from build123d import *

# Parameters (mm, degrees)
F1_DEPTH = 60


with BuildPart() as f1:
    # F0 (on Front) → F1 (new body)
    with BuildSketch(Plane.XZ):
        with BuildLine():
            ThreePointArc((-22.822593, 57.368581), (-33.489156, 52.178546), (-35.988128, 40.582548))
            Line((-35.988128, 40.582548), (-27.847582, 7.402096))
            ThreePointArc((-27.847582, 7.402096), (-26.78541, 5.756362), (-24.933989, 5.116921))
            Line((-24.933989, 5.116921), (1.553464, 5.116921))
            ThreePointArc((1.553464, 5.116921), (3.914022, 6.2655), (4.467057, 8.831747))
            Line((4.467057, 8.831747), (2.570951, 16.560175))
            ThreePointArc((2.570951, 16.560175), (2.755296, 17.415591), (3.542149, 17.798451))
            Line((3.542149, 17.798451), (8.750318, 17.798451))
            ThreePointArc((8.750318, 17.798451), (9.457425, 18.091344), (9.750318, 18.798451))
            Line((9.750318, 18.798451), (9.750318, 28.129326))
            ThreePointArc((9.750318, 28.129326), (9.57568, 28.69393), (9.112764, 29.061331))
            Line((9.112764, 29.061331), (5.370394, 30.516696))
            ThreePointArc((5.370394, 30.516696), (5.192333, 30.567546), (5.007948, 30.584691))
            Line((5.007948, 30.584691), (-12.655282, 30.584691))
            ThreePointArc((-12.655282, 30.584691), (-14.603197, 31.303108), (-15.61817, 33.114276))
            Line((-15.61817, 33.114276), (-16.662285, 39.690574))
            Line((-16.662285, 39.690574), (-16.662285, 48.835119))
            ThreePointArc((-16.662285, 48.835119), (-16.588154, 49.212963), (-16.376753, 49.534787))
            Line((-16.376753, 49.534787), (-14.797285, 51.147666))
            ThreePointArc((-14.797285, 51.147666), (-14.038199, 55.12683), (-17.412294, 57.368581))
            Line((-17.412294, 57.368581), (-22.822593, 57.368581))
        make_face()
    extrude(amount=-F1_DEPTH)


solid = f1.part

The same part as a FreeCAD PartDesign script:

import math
import FreeCAD as App
import Part
import Sketcher

V = App.Vector
Q = App.Units.Quantity

doc = App.newDocument("Part")
body = doc.addObject("PartDesign::Body", "Body")

sketch1 = doc.addObject("Sketcher::SketchObject", "Sketch")
body.addObject(sketch1)
sketch1.AttachmentSupport = (doc.XZ_Plane, [""])
sketch1.MapMode = "FlatFace"
sketch1.addGeometry([
    Part.ArcOfCircle(Part.Circle(V(-22.822595, 43.812603, 0), V(0, 0, 1), 13.555978), math.radians(89.999993), math.radians(193.784773)),
    Part.LineSegment(V(-35.988128, 40.582548, 0), V(-27.847582, 7.402096, 0)),
    Part.ArcOfCircle(Part.Circle(V(-24.933988, 8.116922, 0), V(0, 0, 1), 3.000001), math.radians(-166.215241), math.radians(-90.000011)),
    Part.LineSegment(V(-24.933989, 5.116921, 0), V(1.553464, 5.116921, 0)),
    Part.ArcOfCircle(Part.Circle(V(1.553462, 8.116923, 0), V(0, 0, 1), 3.000002), math.radians(-89.999959), math.radians(13.784729)),
    Part.LineSegment(V(4.467057, 8.831747, 0), V(2.570951, 16.560175, 0)),
    Part.ArcOfCircle(Part.Circle(V(3.54215, 16.79845, 0), V(0, 0, 1), 1.000001), math.radians(90.000052), math.radians(193.784729)),
    Part.LineSegment(V(3.542149, 17.798451, 0), V(8.750318, 17.798451, 0)),
    Part.ArcOfCircle(Part.Circle(V(8.750319, 18.79845, 0), V(0, 0, 1), 0.999999), math.radians(-90.000043), math.radians(0.000043)),
    Part.LineSegment(V(9.750318, 18.798451, 0), V(9.750318, 28.129326, 0)),
    Part.ArcOfCircle(Part.Circle(V(8.750318, 28.129326, 0), V(0, 0, 1), 1), math.radians(0.000001), math.radians(68.749497)),
    Part.LineSegment(V(9.112764, 29.061331, 0), V(5.370394, 30.516696, 0)),
    Part.ArcOfCircle(Part.Circle(V(5.007957, 29.584736, 0), V(0, 0, 1), 0.999955), math.radians(68.749065), math.radians(90.000515)),
    Part.LineSegment(V(5.007948, 30.584691, 0), V(-12.655282, 30.584691, 0)),
    Part.ArcOfCircle(Part.Circle(V(-12.65528, 33.584693, 0), V(0, 0, 1), 3.000002), math.radians(-170.978477), math.radians(-90.000042)),
    Part.LineSegment(V(-15.61817, 33.114276, 0), V(-16.662285, 39.690574, 0)),
    Part.LineSegment(V(-16.662285, 39.690574, 0), V(-16.662285, 48.835119, 0)),
    Part.ArcOfCircle(Part.Circle(V(-15.662282, 48.835118, 0), V(0, 0, 1), 1.000003), math.radians(135.599678), math.radians(179.999932)),
    Part.LineSegment(V(-16.376753, 49.534787, 0), V(-14.797285, 51.147666, 0)),
    Part.ArcOfCircle(Part.Circle(V(-17.412294, 53.708504, 0), V(0, 0, 1), 3.660077), math.radians(-44.400365), math.radians(90.000007)),
    Part.LineSegment(V(-17.412294, 57.368581, 0), V(-22.822593, 57.368581, 0)),
], False)
sketch1.addConstraint([
    Sketcher.Constraint("Coincident", 0, 2, 1, 1),
    Sketcher.Constraint("Coincident", 1, 2, 2, 1),
    Sketcher.Constraint("Coincident", 2, 2, 3, 1),
    Sketcher.Constraint("Coincident", 3, 2, 4, 1),
    Sketcher.Constraint("Coincident", 4, 2, 5, 1),
    Sketcher.Constraint("Coincident", 5, 2, 6, 2),
    Sketcher.Constraint("Coincident", 6, 1, 7, 1),
    Sketcher.Constraint("Coincident", 7, 2, 8, 1),
    Sketcher.Constraint("Coincident", 8, 2, 9, 1),
    Sketcher.Constraint("Coincident", 9, 2, 10, 1),
    Sketcher.Constraint("Coincident", 10, 2, 11, 1),
    Sketcher.Constraint("Coincident", 11, 2, 12, 1),
    Sketcher.Constraint("Coincident", 12, 2, 13, 1),
    Sketcher.Constraint("Coincident", 13, 2, 14, 2),
    Sketcher.Constraint("Coincident", 14, 1, 15, 1),
    Sketcher.Constraint("Coincident", 15, 2, 16, 1),
    Sketcher.Constraint("Coincident", 16, 2, 17, 2),
    Sketcher.Constraint("Coincident", 17, 1, 18, 1),
    Sketcher.Constraint("Coincident", 18, 2, 19, 1),
    Sketcher.Constraint("Coincident", 19, 2, 20, 1),
    Sketcher.Constraint("Coincident", 20, 2, 0, 1),
    Sketcher.Constraint("Horizontal", 3),
    Sketcher.Constraint("Horizontal", 7),
    Sketcher.Constraint("Vertical", 9),
    Sketcher.Constraint("Horizontal", 13),
    Sketcher.Constraint("Vertical", 16),
    Sketcher.Constraint("Horizontal", 20),
    Sketcher.Constraint("Radius", 2, Q("3.000001 mm")),
    Sketcher.Constraint("Radius", 4, Q("3.000002 mm")),
    Sketcher.Constraint("Radius", 6, Q("1.000001 mm")),
    Sketcher.Constraint("Radius", 8, Q("0.999999 mm")),
    Sketcher.Constraint("Radius", 10, Q("1 mm")),
    Sketcher.Constraint("Radius", 14, Q("3.000002 mm")),
    Sketcher.Constraint("DistanceX", 7, 2, 8, 2, Q("1 mm")),
    Sketcher.Constraint("DistanceY", 7, 2, 8, 2, Q("1 mm")),
    Sketcher.Constraint("DistanceX", 20, 2, 20, 1, Q("5.410299 mm")),
    Sketcher.Constraint("Radius", 0, Q("13.555978 mm")),
    Sketcher.Constraint("Radius", 12, Q("0.999955 mm")),
    Sketcher.Constraint("Radius", 17, Q("1.000003 mm")),
    Sketcher.Constraint("Radius", 19, Q("3.660077 mm")),
    Sketcher.Constraint("DistanceX", 16, 2, 18, 2, Q("1.865 mm")),
    Sketcher.Constraint("DistanceX", 7, 1, 7, 2, Q("5.208169 mm")),
    Sketcher.Constraint("DistanceX", 13, 2, 13, 1, Q("17.66323 mm")),
    Sketcher.Constraint("DistanceX", 14, 3, 8, 3, Q("21.405599 mm")),
    Sketcher.Constraint("DistanceX", 17, 3, 10, 3, Q("24.4126 mm")),
    Sketcher.Constraint("DistanceX", 0, 3, 19, 3, Q("5.410301 mm")),
    Sketcher.Constraint("DistanceX", 5, 2, 6, 3, Q("0.971199 mm")),
    Sketcher.Constraint("DistanceX", 5, 2, 6, 1, Q("0.971198 mm")),
    Sketcher.Constraint("DistanceX", 20, 2, 19, 3, Q("5.410299 mm")),
    Sketcher.Constraint("Distance", 1, Q("34.164468 mm")),
    Sketcher.Constraint("Distance", 15, Q("6.658669 mm")),
    Sketcher.Constraint("DistanceX", 3, 1, 3, 2, Q("26.487453 mm")),
    Sketcher.Constraint("DistanceY", 9, 1, 9, 2, Q("9.330875 mm")),
    Sketcher.Constraint("DistanceY", 16, 1, 16, 2, Q("9.144545 mm")),
    Sketcher.Constraint("DistanceX", 2, 3, -1, 1, Q("24.933988 mm")),
    Sketcher.Constraint("DistanceY", -1, 1, 2, 3, Q("8.116922 mm")),
    Sketcher.Constraint("DistanceX", -1, 1, 4, 3, Q("1.553462 mm")),
    Sketcher.Constraint("DistanceX", -1, 1, 6, 3, Q("3.54215 mm")),
    Sketcher.Constraint("DistanceY", -1, 1, 6, 3, Q("16.79845 mm")),
    Sketcher.Constraint("DistanceX", 0, 2, -1, 1, Q("35.988128 mm")),
    Sketcher.Constraint("DistanceX", 1, 2, -1, 1, Q("27.847582 mm")),
    Sketcher.Constraint("DistanceX", 2, 2, -1, 1, Q("24.933989 mm")),
    Sketcher.Constraint("DistanceY", -1, 1, 10, 2, Q("29.061331 mm")),
    Sketcher.Constraint("DistanceY", -1, 1, 12, 2, Q("30.584691 mm")),
    Sketcher.Constraint("DistanceX", 14, 1, -1, 1, Q("15.61817 mm")),
    Sketcher.Constraint("DistanceY", -1, 1, 19, 2, Q("57.368581 mm")),
    Sketcher.Constraint("DistanceX", 12, 3, 10, 3, Q("3.742361 mm")),
    Sketcher.Constraint("DistanceY", 10, 3, 12, 3, Q("1.45541 mm")),
    Sketcher.Constraint("DistanceY", 12, 3, 17, 3, Q("19.250382 mm")),
    Sketcher.Constraint("DistanceX", 4, 2, 8, 3, Q("4.283262 mm")),
    Sketcher.Constraint("DistanceY", 12, 3, 11, 2, Q("0.93196 mm")),
    Sketcher.Constraint("DistanceX", 12, 2, 10, 3, Q("3.74237 mm")),
    Sketcher.Constraint("DistanceX", 16, 2, 17, 1, Q("0.285532 mm")),
])
pad1 = doc.addObject("PartDesign::Pad", "Pad")
body.addObject(pad1)
pad1.Profile = sketch1
pad1.Length = 60
pad1.Reversed = True

doc.recompute()
